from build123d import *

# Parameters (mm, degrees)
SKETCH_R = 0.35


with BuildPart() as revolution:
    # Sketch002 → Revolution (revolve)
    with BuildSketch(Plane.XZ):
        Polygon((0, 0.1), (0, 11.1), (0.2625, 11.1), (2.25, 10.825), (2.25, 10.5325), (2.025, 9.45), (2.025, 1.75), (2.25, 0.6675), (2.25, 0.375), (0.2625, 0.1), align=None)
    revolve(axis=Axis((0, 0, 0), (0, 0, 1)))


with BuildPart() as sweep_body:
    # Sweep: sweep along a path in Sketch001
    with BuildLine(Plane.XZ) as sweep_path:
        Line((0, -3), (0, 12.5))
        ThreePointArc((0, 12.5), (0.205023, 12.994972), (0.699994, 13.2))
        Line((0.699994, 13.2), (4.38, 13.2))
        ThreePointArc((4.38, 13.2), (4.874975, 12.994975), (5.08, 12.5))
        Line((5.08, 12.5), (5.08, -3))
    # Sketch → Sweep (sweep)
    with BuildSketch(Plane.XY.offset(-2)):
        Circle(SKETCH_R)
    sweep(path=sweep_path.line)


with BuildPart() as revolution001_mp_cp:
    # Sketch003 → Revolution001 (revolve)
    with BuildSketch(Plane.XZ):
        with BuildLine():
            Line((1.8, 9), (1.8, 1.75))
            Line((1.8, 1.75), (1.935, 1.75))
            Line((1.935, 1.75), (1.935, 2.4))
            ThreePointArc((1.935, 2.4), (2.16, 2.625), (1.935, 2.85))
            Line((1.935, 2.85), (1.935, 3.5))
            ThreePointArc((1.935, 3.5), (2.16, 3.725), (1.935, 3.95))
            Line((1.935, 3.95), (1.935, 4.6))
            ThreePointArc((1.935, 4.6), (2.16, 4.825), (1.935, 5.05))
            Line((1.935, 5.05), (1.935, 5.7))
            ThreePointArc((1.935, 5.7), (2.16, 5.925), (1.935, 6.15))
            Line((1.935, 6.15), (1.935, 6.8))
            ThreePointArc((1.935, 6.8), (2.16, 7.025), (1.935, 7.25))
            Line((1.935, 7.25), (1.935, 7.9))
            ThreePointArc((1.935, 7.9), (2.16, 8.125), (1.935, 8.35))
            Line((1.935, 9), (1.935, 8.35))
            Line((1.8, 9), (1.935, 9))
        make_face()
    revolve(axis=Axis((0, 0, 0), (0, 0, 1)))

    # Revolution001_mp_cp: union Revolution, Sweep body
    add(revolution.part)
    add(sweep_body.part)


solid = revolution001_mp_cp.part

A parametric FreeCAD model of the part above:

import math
import FreeCAD as App
import Part
import Sketcher
from FreeCAD import Vector
Q = App.Units.Quantity


def add_polygon(sketch, points):
    """Adds a closed chain of lines whose ends are joined by coincident constraints."""
    first, n = sketch.GeometryCount, len(points)
    for a, b in zip(points, points[1:] + points[:1]):
        sketch.addGeometry(Part.LineSegment(App.Vector(*a, 0), App.Vector(*b, 0)), False)
    for i in range(n):
        sketch.addConstraint(Sketcher.Constraint("Coincident", first + i, 2, first + (i + 1) % n, 1))

doc = App.newDocument("Part")
body = doc.addObject("PartDesign::Body", "Body")

# Sketch on XZ plane
sketch1 = body.newObject("Sketcher::SketchObject", "Sketch")
sketch1.AttachmentSupport = (doc.getObject("XZ_Plane"), [""])
sketch1.MapMode = "FlatFace"
add_polygon(sketch1, [(0, 11.1), (0, 0.1), (0.26, 0.1), (2.25, 0.38), (2.25, 0.67), (2.02, 1.75), (2.02, 9.45), (2.25, 10.53), (2.25, 10.82), (0.26, 11.1)])  # lines 0-9
sketch1.addConstraint(Sketcher.Constraint("Vertical", 0))
sketch1.addConstraint(Sketcher.Constraint("Horizontal", 1))
sketch1.addConstraint(Sketcher.Constraint("Vertical", 3))
sketch1.addConstraint(Sketcher.Constraint("Vertical", 5))
sketch1.addConstraint(Sketcher.Constraint("Vertical", 7))
sketch1.addConstraint(Sketcher.Constraint("Horizontal", 9))
sketch1.addConstraint(Sketcher.Constraint("PointOnObject", 0, 2, -2))
sketch1.addConstraint(Sketcher.Constraint("Vertical", 3, 2, 6, 2))
sketch1.addConstraint(Sketcher.Constraint("Vertical", 1, 2, 8, 2))
sketch1.addConstraint(Sketcher.Constraint("Equal", 3, 7))
sketch1.addConstraint(Sketcher.Constraint("Equal", 4, 6))
sketch1.addConstraint(Sketcher.Constraint("Equal", 2, 8))
sketch1.addConstraint(Sketcher.Constraint("DistanceY", 0, 2, 0, 1, Q("11 mm")))
sketch1.addConstraint(Sketcher.Constraint("DistanceY", 5, 1, 5, 2, Q("7.7 mm")))
sketch1.addConstraint(Sketcher.Constraint("DistanceY", -1, 1, 0, 2, Q("0.1 mm")))
sketch1.addConstraint(Sketcher.Constraint("DistanceX", -1, 1, 2, 2, Q("2.25 mm")))
sketch1.addConstraint(Sketcher.Constraint("DistanceY", 2, 2, 7, 2, Q("10.45 mm")))
sketch1.addConstraint(Sketcher.Constraint("DistanceX", 1, 1, 1, 2, Q("0.2625 mm")))
sketch1.addConstraint(Sketcher.Constraint("DistanceY", 3, 1, 3, 2, Q("0.2925 mm")))
sketch1.addConstraint(Sketcher.Constraint("DistanceX", -1, 1, 4, 2, Q("2.025 mm")))
revolution = body.newObject("PartDesign::Revolution", "Revolution")
revolution.Profile = sketch1
revolution.ReferenceAxis = (sketch1, ["V_Axis"])
revolution.Angle = 360
body2 = doc.addObject("PartDesign::Body", "Body001")

# Sketch on XY plane
sketch2 = body2.newObject("Sketcher::SketchObject", "Sketch001")
sketch2.AttachmentSupport = (doc.getObject("XY_Plane001"), [""])
sketch2.MapMode = "FlatFace"
sketch2.AttachmentOffset = App.Placement(Vector(0, 0, -2), App.Rotation())
sketch2.addGeometry(Part.Circle(Vector(0, 0, 0), Vector(0, 0, 1), 0.35), False)
sketch2.addConstraint(Sketcher.Constraint("Coincident", 0, 3, -1, 1))
sketch2.addConstraint(Sketcher.Constraint("Diameter", 0, Q("0.7 mm")))

# Sketch on XZ plane
sketch3 = body2.newObject("Sketcher::SketchObject", "Sketch002")
sketch3.AttachmentSupport = (doc.getObject("XZ_Plane001"), [""])
sketch3.MapMode = "FlatFace"
sketch3.addGeometry(Part.LineSegment(Vector(0, -3, 0), Vector(0, 12.5, 0)), False)
sketch3.addGeometry(Part.ArcOfCircle(Part.Circle(Vector(0.7, 12.5, 0), Vector(0, 0, 1), 0.7), math.radians(90), math.radians(180)), False)
sketch3.addGeometry(Part.LineSegment(Vector(0.7, 13.2, 0), Vector(4.4, 13.2, 0)), False)
sketch3.addGeometry(Part.ArcOfCircle(Part.Circle(Vector(4.4, 12.5, 0), Vector(0, 0, 1), 0.7), math.radians(0), math.radians(90)), False)
sketch3.addGeometry(Part.LineSegment(Vector(5.1, 12.5, 0), Vector(5.1, -3, 0)), False)
sketch3.addConstraint(Sketcher.Constraint("Tangent", 0, 2, 1, 2))
sketch3.addConstraint(Sketcher.Constraint("Coincident", 1, 1, 2, 1))
sketch3.addConstraint(Sketcher.Constraint("Tangent", 2, 2, 3, 2))
sketch3.addConstraint(Sketcher.Constraint("Tangent", 3, 1, 4, 1))
sketch3.addConstraint(Sketcher.Constraint("Vertical", 0))
sketch3.addConstraint(Sketcher.Constraint("Horizontal", 2))
sketch3.addConstraint(Sketcher.Constraint("Vertical", 4))
sketch3.addConstraint(Sketcher.Constraint("Equal", 1, 3))
sketch3.addConstraint(Sketcher.Constraint("PointOnObject", 0, 1, -2))
sketch3.addConstraint(Sketcher.Constraint("Horizontal", 0, 1, 4, 2))
sketch3.addConstraint(Sketcher.Constraint("Radius", 1, Q("0.700001 mm")))
sketch3.addConstraint(Sketcher.Constraint("DistanceY", 0, 1, 0, 2, Q("15.5 mm")))
sketch3.addConstraint(Sketcher.Constraint("DistanceY", 0, 1, -1, 1, Q("3 mm")))
sketch3.addConstraint(Sketcher.Constraint("DistanceX", -1, 1, 3, 3, Q("4.380001 mm")))
sketch3.addConstraint(Sketcher.Constraint("DistanceX", 2, 1, 2, 2, Q("3.680006 mm")))
doc.recompute()

additivepipe = body2.newObject("PartDesign::AdditivePipe", "AdditivePipe")
additivepipe.Profile = sketch2
additivepipe.Spine = (sketch3, ["Edge1", "Edge2", "Edge3", "Edge4", "Edge5"])
body3 = doc.addObject("PartDesign::Body", "Body002")

# Sketch on XZ plane
sketch4 = body3.newObject("Sketcher::SketchObject", "Sketch003")
sketch4.AttachmentSupport = (doc.getObject("XZ_Plane002"), [""])
sketch4.MapMode = "FlatFace"
sketch4.addGeometry(Part.LineSegment(Vector(1.8, 9, 0), Vector(1.8, 1.75, 0)), False)
sketch4.addGeometry(Part.LineSegment(Vector(1.8, 1.75, 0), Vector(1.94, 1.75, 0)), False)
sketch4.addGeometry(Part.LineSegment(Vector(1.94, 1.75, 0), Vector(1.94, 2.4, 0)), False)
sketch4.addGeometry(Part.ArcOfCircle(Part.Circle(Vector(1.94, 2.62, 0), Vector(0, 0, 1), 0.23), math.radians(-90), math.radians(90)), False)
sketch4.addGeometry(Part.LineSegment(Vector(1.94, 2.85, 0), Vector(1.94, 3.5, 0)), False)
sketch4.addGeometry(Part.ArcOfCircle(Part.Circle(Vector(1.94, 3.73, 0), Vector(0, 0, 1), 0.23), math.radians(-90), math.radians(90)), False)
sketch4.addGeometry(Part.LineSegment(Vector(1.94, 3.95, 0), Vector(1.94, 4.6, 0)), False)
sketch4.addGeometry(Part.ArcOfCircle(Part.Circle(Vector(1.94, 4.83, 0), Vector(0, 0, 1), 0.23), math.radians(-90), math.radians(90)), False)
sketch4.addGeometry(Part.LineSegment(Vector(1.94, 5.05, 0), Vector(1.94, 5.7, 0)), False)
sketch4.addGeometry(Part.ArcOfCircle(Part.Circle(Vector(1.94, 5.92, 0), Vector(0, 0, 1), 0.23), math.radians(-90), math.radians(90)), False)
sketch4.addGeometry(Part.LineSegment(Vector(1.94, 6.15, 0), Vector(1.94, 6.8, 0)), False)
sketch4.addGeometry(Part.ArcOfCircle(Part.Circle(Vector(1.94, 7.03, 0), Vector(0, 0, 1), 0.23), math.radians(-90), math.radians(90)), False)
sketch4.addGeometry(Part.LineSegment(Vector(1.94, 7.25, 0), Vector(1.94, 7.9, 0)), False)
sketch4.addGeometry(Part.ArcOfCircle(Part.Circle(Vector(1.94, 8.12, 0), Vector(0, 0, 1), 0.23), math.radians(-90), math.radians(90)), False)
sketch4.addGeometry(Part.LineSegment(Vector(1.94, 8.35, 0), Vector(1.94, 9, 0)), False)
sketch4.addGeometry(Part.LineSegment(Vector(1.94, 9, 0), Vector(1.8, 9, 0)), False)
sketch4.addConstraint(Sketcher.Constraint("Coincident", 0, 2, 1, 1))
sketch4.addConstraint(Sketcher.Constraint("Coincident", 1, 2, 2, 1))
sketch4.addConstraint(Sketcher.Constraint("Coincident", 2, 2, 3, 1))
sketch4.addConstraint(Sketcher.Constraint("Coincident", 3, 2, 4, 1))
sketch4.addConstraint(Sketcher.Constraint("Coincident", 4, 2, 5, 1))
sketch4.addConstraint(Sketcher.Constraint("Coincident", 5, 2, 6, 1))
sketch4.addConstraint(Sketcher.Constraint("Coincident", 6, 2, 7, 1))
sketch4.addConstraint(Sketcher.Constraint("Coincident", 7, 2, 8, 1))
sketch4.addConstraint(Sketcher.Constraint("Coincident", 8, 2, 9, 1))
sketch4.addConstraint(Sketcher.Constraint("Coincident", 9, 2, 10, 1))
sketch4.addConstraint(Sketcher.Constraint("Coincident", 10, 2, 11, 1))
sketch4.addConstraint(Sketcher.Constraint("Coincident", 11, 2, 12, 1))
sketch4.addConstraint(Sketcher.Constraint("Coincident", 12, 2, 13, 1))
sketch4.addConstraint(Sketcher.Constraint("Coincident", 13, 2, 14, 1))
sketch4.addConstraint(Sketcher.Constraint("Coincident", 14, 2, 15, 1))
sketch4.addConstraint(Sketcher.Constraint("Coincident", 15, 2, 0, 1))
sketch4.addConstraint(Sketcher.Constraint("Vertical", 0))
sketch4.addConstraint(Sketcher.Constraint("Horizontal", 1))
sketch4.addConstraint(Sketcher.Constraint("Vertical", 2))
sketch4.addConstraint(Sketcher.Constraint("Vertical", 4))
sketch4.addConstraint(Sketcher.Constraint("Vertical", 6))
sketch4.addConstraint(Sketcher.Constraint("Vertical", 8))
sketch4.addConstraint(Sketcher.Constraint("Vertical", 10))
sketch4.addConstraint(Sketcher.Constraint("Vertical", 12))
sketch4.addConstraint(Sketcher.Constraint("Vertical", 14))
sketch4.addConstraint(Sketcher.Constraint("Horizontal", 15))
sketch4.addConstraint(Sketcher.Constraint("Equal", 3, 5))
sketch4.addConstraint(Sketcher.Constraint("Equal", 5, 7))
sketch4.addConstraint(Sketcher.Constraint("Equal", 7, 9))
sketch4.addConstraint(Sketcher.Constraint("Equal", 9, 11))
sketch4.addConstraint(Sketcher.Constraint("Equal", 11, 13))
sketch4.addConstraint(Sketcher.Constraint("Vertical", 3, 3, 5, 3))
sketch4.addConstraint(Sketcher.Constraint("Vertical", 5, 3, 7, 3))
sketch4.addConstraint(Sketcher.Constraint("Vertical", 7, 3, 9, 3))
sketch4.addConstraint(Sketcher.Constraint("Vertical", 9, 3, 11, 3))
sketch4.addConstraint(Sketcher.Constraint("Vertical", 11, 3, 13, 3))
sketch4.addConstraint(Sketcher.Constraint("Vertical", 13, 3, 1, 2))
sketch4.addConstraint(Sketcher.Constraint("Vertical", 2, 2, 3, 2))
sketch4.addConstraint(Sketcher.Constraint("Vertical", 4, 2, 5, 2))
sketch4.addConstraint(Sketcher.Constraint("Vertical", 6, 2, 7, 2))
sketch4.addConstraint(Sketcher.Constraint("Vertical", 8, 2, 9, 2))
sketch4.addConstraint(Sketcher.Constraint("Vertical", 10, 2, 11, 2))
sketch4.addConstraint(Sketcher.Constraint("Vertical", 12, 2, 13, 2))
sketch4.addConstraint(Sketcher.Constraint("Equal", 2, 4))
sketch4.addConstraint(Sketcher.Constraint("Equal", 4, 6))
sketch4.addConstraint(Sketcher.Constraint("Equal", 6, 8))
sketch4.addConstraint(Sketcher.Constraint("Equal", 8, 10))
sketch4.addConstraint(Sketcher.Constraint("Equal", 10, 12))
sketch4.addConstraint(Sketcher.Constraint("Equal", 12, 14))
sketch4.addConstraint(Sketcher.Constraint("DistanceY", -1, 1, 14, 2, Q("9 mm")))
sketch4.addConstraint(Sketcher.Constraint("Radius", 3, Q("0.225 mm")))
sketch4.addConstraint(Sketcher.Constraint("DistanceY", 0, 2, 0, 1, Q("7.25 mm")))
sketch4.addConstraint(Sketcher.Constraint("DistanceX", -1, 1, 0, 2, Q("1.8 mm")))
sketch4.addConstraint(Sketcher.Constraint("DistanceX", 1, 1, 1, 2, Q("0.135 mm")))
revolution2 = body3.newObject("PartDesign::Revolution", "Revolution001")
revolution2.Profile = sketch4
revolution2.ReferenceAxis = (sketch4, ["V_Axis"])
revolution2.Angle = 360
doc.recompute()

boolean = body3.newObject("PartDesign::Boolean", "Boolean")
boolean.Type = "Fuse"
boolean.addObjects([body])
doc.recompute()

boolean2 = body3.newObject("PartDesign::Boolean", "Boolean001")
boolean2.Type = "Fuse"
boolean2.addObjects([body2])

doc.recompute()
